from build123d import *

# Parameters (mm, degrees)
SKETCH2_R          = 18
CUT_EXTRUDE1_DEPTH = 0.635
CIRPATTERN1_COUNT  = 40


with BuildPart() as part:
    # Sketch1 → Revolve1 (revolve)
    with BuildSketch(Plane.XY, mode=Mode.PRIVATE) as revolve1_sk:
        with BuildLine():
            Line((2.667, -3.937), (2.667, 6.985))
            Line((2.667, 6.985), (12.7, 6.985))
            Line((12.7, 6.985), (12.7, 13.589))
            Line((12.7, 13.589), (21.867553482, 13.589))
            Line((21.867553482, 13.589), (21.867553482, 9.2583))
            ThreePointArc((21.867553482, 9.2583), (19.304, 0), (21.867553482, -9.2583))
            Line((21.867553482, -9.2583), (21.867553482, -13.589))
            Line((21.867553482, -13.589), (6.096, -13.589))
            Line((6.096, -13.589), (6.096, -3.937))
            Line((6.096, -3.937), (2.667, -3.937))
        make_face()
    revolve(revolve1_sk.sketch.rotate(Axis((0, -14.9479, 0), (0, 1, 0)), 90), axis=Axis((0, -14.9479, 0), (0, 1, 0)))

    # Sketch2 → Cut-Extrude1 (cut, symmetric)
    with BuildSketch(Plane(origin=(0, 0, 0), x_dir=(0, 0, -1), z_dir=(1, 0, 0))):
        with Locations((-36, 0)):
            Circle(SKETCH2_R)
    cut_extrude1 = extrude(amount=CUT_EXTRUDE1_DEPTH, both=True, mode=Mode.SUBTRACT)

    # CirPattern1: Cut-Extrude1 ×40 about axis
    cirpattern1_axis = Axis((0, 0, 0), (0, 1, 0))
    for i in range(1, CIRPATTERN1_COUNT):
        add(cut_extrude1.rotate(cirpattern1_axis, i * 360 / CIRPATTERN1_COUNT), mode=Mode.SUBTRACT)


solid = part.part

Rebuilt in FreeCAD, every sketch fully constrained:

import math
import FreeCAD as App
import Part
import Sketcher

V = App.Vector
Q = App.Units.Quantity

doc = App.newDocument("Part")
body = doc.addObject("PartDesign::Body", "Body")

sketch1 = body.newObject("Sketcher::SketchObject", "Sketch")
sketch1.AttachmentSupport = (doc.getObject("XY_Plane"), [""])
sketch1.MapMode = "FlatFace"
sketch1.addGeometry(Part.LineSegment(V(2.7, 7, 0), V(2.7, -3.9, 0)), False)
sketch1.addGeometry(Part.LineSegment(V(2.7, -3.9, 0), V(6.1, -3.9, 0)), False)
sketch1.addGeometry(Part.LineSegment(V(6.1, -3.9, 0), V(6.1, -13.6, 0)), False)
sketch1.addGeometry(Part.LineSegment(V(6.1, -13.6, 0), V(21.9, -13.6, 0)), False)
sketch1.addGeometry(Part.LineSegment(V(21.9, -13.6, 0), V(21.9, -9.3, 0)), False)
sketch1.addGeometry(Part.ArcOfCircle(Part.Circle(V(37.3, 0, 0), V(0, 0, 1), 18), math.radians(149), math.radians(211)), False)
sketch1.addGeometry(Part.LineSegment(V(21.9, 9.3, 0), V(21.9, 13.6, 0)), False)
sketch1.addGeometry(Part.LineSegment(V(21.9, 13.6, 0), V(12.7, 13.6, 0)), False)
sketch1.addGeometry(Part.LineSegment(V(12.7, 13.6, 0), V(12.7, 7, 0)), False)
sketch1.addGeometry(Part.LineSegment(V(12.7, 7, 0), V(2.7, 7, 0)), False)
sketch1.addConstraint(Sketcher.Constraint("Coincident", 0, 2, 1, 1))
sketch1.addConstraint(Sketcher.Constraint("Coincident", 1, 2, 2, 1))
sketch1.addConstraint(Sketcher.Constraint("Coincident", 2, 2, 3, 1))
sketch1.addConstraint(Sketcher.Constraint("Coincident", 3, 2, 4, 1))
sketch1.addConstraint(Sketcher.Constraint("Coincident", 4, 2, 5, 2))
sketch1.addConstraint(Sketcher.Constraint("Coincident", 5, 1, 6, 1))
sketch1.addConstraint(Sketcher.Constraint("Coincident", 6, 2, 7, 1))
sketch1.addConstraint(Sketcher.Constraint("Coincident", 7, 2, 8, 1))
sketch1.addConstraint(Sketcher.Constraint("Coincident", 8, 2, 9, 1))
sketch1.addConstraint(Sketcher.Constraint("Coincident", 9, 2, 0, 1))
sketch1.addConstraint(Sketcher.Constraint("Vertical", 0))
sketch1.addConstraint(Sketcher.Constraint("Horizontal", 1))
sketch1.addConstraint(Sketcher.Constraint("Vertical", 2))
sketch1.addConstraint(Sketcher.Constraint("Horizontal", 3))
sketch1.addConstraint(Sketcher.Constraint("Vertical", 4))
sketch1.addConstraint(Sketcher.Constraint("Vertical", 6))
sketch1.addConstraint(Sketcher.Constraint("Horizontal", 7))
sketch1.addConstraint(Sketcher.Constraint("Vertical", 8))
sketch1.addConstraint(Sketcher.Constraint("Horizontal", 9))
sketch1.addConstraint(Sketcher.Constraint("Symmetric", 4, 2, 5, 1, -1))
sketch1.addConstraint(Sketcher.Constraint("Equal", 4, 6))
sketch1.addConstraint(Sketcher.Constraint("DistanceY", 0, 2, 0, 1, Q("0.43 in")))
sketch1.addConstraint(Sketcher.Constraint("DistanceY", 2, 2, 2, 1, Q("0.38 in")))
sketch1.addConstraint(Sketcher.Constraint("DistanceY", 8, 2, 8, 1, Q("0.26 in")))
sketch1.addConstraint(Sketcher.Constraint("DistanceX", -1, 1, 7, 2, Q("0.5 in")))
sketch1.addConstraint(Sketcher.Constraint("DistanceX", 1, 1, 1, 2, Q("0.135 in")))
sketch1.addConstraint(Sketcher.Constraint("DistanceX", 9, 2, 9, 1, Q("0.395 in")))
sketch1.addConstraint(Sketcher.Constraint("Radius", 5, Q("18 mm")))
sketch1.addConstraint(Sketcher.Constraint("DistanceY", 4, 1, 4, 2, Q("0.1705 in")))
sketch1.addConstraint(Sketcher.Constraint("DistanceX", -1, 1, 5, 3, Q("37.304 mm")))
revolution = body.newObject("PartDesign::Revolution", "Revolution")
revolution.Profile = sketch1
revolution.ReferenceAxis = (sketch1, ["V_Axis"])
revolution.Angle = 360

sketch2 = body.newObject("Sketcher::SketchObject", "Sketch001")
sketch2.AttachmentSupport = (doc.getObject("YZ_Plane"), [""])
sketch2.MapMode = "FlatFace"
sketch2.addGeometry(Part.Circle(V(0, 36, 0), V(0, 0, 1), 18), False)
sketch2.addConstraint(Sketcher.Constraint("PointOnObject", 0, 3, -2))
sketch2.addConstraint(Sketcher.Constraint("Diameter", 0, Q("36 mm")))
sketch2.addConstraint(Sketcher.Constraint("DistanceY", -1, 1, 0, 3, Q("36 mm")))
pocket1 = body.newObject("PartDesign::Pocket", "Pocket")
pocket1.Profile = sketch2
pocket1.Length = Q("0.05 in")
pocket1.Midplane = True
doc.recompute()

polarpattern = body.newObject("PartDesign::PolarPattern", "PolarPattern")
polarpattern.Originals = [pocket1]
polarpattern.Axis = (doc.getObject("Y_Axis"), [""])
polarpattern.Angle = 360
polarpattern.Occurrences = 40
body.Tip = polarpattern

doc.recompute()
